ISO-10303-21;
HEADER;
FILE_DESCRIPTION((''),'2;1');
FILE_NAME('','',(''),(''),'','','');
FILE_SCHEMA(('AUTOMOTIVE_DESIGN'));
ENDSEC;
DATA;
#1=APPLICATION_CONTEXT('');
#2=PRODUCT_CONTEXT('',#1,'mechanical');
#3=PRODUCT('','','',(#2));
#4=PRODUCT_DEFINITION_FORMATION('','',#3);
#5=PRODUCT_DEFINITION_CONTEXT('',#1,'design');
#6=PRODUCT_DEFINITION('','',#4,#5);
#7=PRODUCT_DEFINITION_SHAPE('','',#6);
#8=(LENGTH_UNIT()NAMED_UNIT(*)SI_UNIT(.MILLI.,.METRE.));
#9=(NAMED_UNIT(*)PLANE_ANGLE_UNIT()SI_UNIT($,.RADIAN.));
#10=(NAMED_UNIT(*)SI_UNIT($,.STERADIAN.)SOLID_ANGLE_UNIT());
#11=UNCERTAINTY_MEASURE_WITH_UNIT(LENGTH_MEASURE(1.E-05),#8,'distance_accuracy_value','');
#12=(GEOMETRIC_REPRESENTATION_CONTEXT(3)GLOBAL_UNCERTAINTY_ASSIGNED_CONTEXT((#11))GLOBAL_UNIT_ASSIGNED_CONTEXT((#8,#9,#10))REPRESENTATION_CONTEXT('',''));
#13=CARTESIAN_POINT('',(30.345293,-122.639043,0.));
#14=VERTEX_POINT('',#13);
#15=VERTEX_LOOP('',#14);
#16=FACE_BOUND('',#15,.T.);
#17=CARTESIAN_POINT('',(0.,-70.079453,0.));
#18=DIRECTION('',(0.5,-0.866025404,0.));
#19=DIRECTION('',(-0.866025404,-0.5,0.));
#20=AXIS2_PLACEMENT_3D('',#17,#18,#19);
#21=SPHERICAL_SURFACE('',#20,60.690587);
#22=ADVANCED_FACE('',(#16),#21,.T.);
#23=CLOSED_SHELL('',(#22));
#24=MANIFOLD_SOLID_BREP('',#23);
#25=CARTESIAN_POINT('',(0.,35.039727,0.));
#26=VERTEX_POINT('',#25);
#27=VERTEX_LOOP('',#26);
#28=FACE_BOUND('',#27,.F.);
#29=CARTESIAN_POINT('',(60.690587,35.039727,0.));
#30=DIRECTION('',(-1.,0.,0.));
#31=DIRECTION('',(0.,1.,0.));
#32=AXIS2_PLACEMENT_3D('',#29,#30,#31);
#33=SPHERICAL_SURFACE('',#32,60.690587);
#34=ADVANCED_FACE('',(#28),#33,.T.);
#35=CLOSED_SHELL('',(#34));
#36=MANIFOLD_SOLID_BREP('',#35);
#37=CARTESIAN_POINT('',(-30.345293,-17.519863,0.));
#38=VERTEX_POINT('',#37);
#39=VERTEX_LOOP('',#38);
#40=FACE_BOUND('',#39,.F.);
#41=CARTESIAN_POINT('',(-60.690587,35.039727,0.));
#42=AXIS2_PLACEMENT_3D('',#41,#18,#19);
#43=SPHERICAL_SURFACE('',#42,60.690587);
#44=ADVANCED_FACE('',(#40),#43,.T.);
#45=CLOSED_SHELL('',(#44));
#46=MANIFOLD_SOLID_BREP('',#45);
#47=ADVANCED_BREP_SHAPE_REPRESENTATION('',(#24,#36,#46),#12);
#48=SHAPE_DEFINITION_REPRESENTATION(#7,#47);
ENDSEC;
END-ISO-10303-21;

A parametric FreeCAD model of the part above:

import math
import FreeCAD as App
import Part
import Sketcher
from FreeCAD import Vector
Q = App.Units.Quantity

doc = App.newDocument("Part")
body = doc.addObject("PartDesign::Body", "Body")

# Sketch on XY plane
sketch1 = body.newObject("Sketcher::SketchObject", "Sketch")
sketch1.AttachmentSupport = (doc.getObject("XY_Plane"), [""])
sketch1.MapMode = "FlatFace"
sketch1.addGeometry([
    Part.ArcOfCircle(Part.Circle(Vector(0, -70, 0), Vector(0, 0, 1), 61), math.radians(120), math.radians(300)),
    Part.LineSegment(Vector(30, -123, 0), Vector(-30, -18, 0)),
], False)
sketch1.addGeometry(Part.LineSegment(Vector(-30, -18, 0), Vector(30, -123, 0)), True)  # axis
sketch1.addConstraint([
    Sketcher.Constraint("Coincident", 0, 1, 1, 2),
    Sketcher.Constraint("Coincident", 1, 1, 0, 2),
    Sketcher.Constraint("Coincident", 2, 1, 0, 1),
    Sketcher.Constraint("Coincident", 2, 2, 1, 1),
    Sketcher.Constraint("PointOnObject", 0, 3, -2),
    Sketcher.Constraint("Angle", 1, Q("120 deg")),
    Sketcher.Constraint("Radius", 0, Q("60.690587 mm")),
    Sketcher.Constraint("DistanceY", 0, 3, 0, 1, Q("52.55959 mm")),
    Sketcher.Constraint("DistanceY", 0, 3, -1, 1, Q("70.079453 mm")),
])
revolution = body.newObject("PartDesign::Revolution", "Revolution")
revolution.Profile = sketch1
revolution.ReferenceAxis = (sketch1, ["Axis0"])
revolution.Angle = 360
body2 = doc.addObject("PartDesign::Body", "Body001")

# Sketch on XY plane
sketch2 = body2.newObject("Sketcher::SketchObject", "Sketch001")
sketch2.AttachmentSupport = (doc.getObject("XY_Plane001"), [""])
sketch2.MapMode = "FlatFace"
sketch2.addGeometry([
    Part.ArcOfCircle(Part.Circle(Vector(61, 35, 0), Vector(0, 0, 1), 61), math.radians(0), math.radians(180)),
    Part.LineSegment(Vector(0, 35, 0), Vector(121, 35, 0)),
], False)
sketch2.addGeometry(Part.LineSegment(Vector(0, 35, 0), Vector(121, 35, 0)), True)  # axis
sketch2.addConstraint([
    Sketcher.Constraint("Coincident", 0, 1, 1, 2),
    Sketcher.Constraint("Coincident", 1, 1, 0, 2),
    Sketcher.Constraint("Horizontal", 1),
    Sketcher.Constraint("Horizontal", 2),
    Sketcher.Constraint("Coincident", 2, 1, 1, 1),
    Sketcher.Constraint("PointOnObject", 1, 1, -2),
    Sketcher.Constraint("Equal", 1, 2),
    Sketcher.Constraint("Radius", 0, Q("60.690587 mm")),
    Sketcher.Constraint("DistanceY", -1, 1, 0, 3, Q("35.039727 mm")),
    Sketcher.Constraint("DistanceY", -1, 1, 0, 1, Q("35.039727 mm")),
])
revolution2 = body2.newObject("PartDesign::Revolution", "Revolution001")
revolution2.Profile = sketch2
revolution2.ReferenceAxis = (sketch2, ["Axis0"])
revolution2.Angle = 360
body3 = doc.addObject("PartDesign::Body", "Body002")

# Sketch on XY plane
sketch3 = body3.newObject("Sketcher::SketchObject", "Sketch002")
sketch3.AttachmentSupport = (doc.getObject("XY_Plane002"), [""])
sketch3.MapMode = "FlatFace"
sketch3.addGeometry([
    Part.LineSegment(Vector(-30, -18, 0), Vector(-61, 35, 0)),
    Part.LineSegment(Vector(-61, 35, 0), Vector(-91, 88, 0)),
    Part.ArcOfCircle(Part.Circle(Vector(-61, 35, 0), Vector(0, 0, 1), 61), math.radians(120), math.radians(300)),
], False)
sketch3.addGeometry(Part.LineSegment(Vector(-30, -18, 0), Vector(-91, 88, 0)), True)  # axis
sketch3.addConstraint([
    Sketcher.Constraint("Coincident", 0, 2, 1, 1),
    Sketcher.Constraint("Coincident", 1, 2, 2, 1),
    Sketcher.Constraint("Coincident", 2, 2, 0, 1),
    Sketcher.Constraint("Coincident", 0, 2, 2, 3),
    Sketcher.Constraint("Coincident", 3, 1, 2, 2),
    Sketcher.Constraint("Coincident", 3, 2, 1, 2),
    Sketcher.Constraint("Parallel", 0, 1),
    Sketcher.Constraint("Angle", 0, Q("120 deg")),
    Sketcher.Constraint("Radius", 2, Q("60.690587 mm")),
    Sketcher.Constraint("DistanceX", 1, 2, -1, 1, Q("91.03588 mm")),
    Sketcher.Constraint("DistanceY", -1, 1, 2, 3, Q("35.039727 mm")),
])
revolution3 = body3.newObject("PartDesign::Revolution", "Revolution002")
revolution3.Profile = sketch3
revolution3.ReferenceAxis = (sketch3, ["Axis0"])
revolution3.Angle = 360

doc.recompute()
